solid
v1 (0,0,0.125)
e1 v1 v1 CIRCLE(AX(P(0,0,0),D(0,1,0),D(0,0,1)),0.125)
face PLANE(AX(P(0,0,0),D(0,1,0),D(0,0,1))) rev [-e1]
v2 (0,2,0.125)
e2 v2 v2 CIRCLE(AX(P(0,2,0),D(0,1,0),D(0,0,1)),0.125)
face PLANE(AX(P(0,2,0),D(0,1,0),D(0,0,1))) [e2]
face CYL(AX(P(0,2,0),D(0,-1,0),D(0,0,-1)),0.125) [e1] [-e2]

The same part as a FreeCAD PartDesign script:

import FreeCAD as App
import Part
import Sketcher
Q = App.Units.Quantity

doc = App.newDocument("Part")
body = doc.addObject("PartDesign::Body", "Body")

# Sketch on XZ plane
sketch1 = body.newObject("Sketcher::SketchObject", "Sketch")
sketch1.AttachmentSupport = (doc.getObject("XZ_Plane"), [""])
sketch1.MapMode = "FlatFace"
sketch1.addGeometry(Part.Circle(App.Vector(0, 0, 0), App.Vector(0, 0, 1), 0.125), False)
sketch1.addConstraint([
    Sketcher.Constraint("Coincident", 0, 3, -1, 1),
    Sketcher.Constraint("Diameter", 0, Q("0.25 mm")),
])
pad1 = body.newObject("PartDesign::Pad", "Pad")
pad1.Profile = sketch1
pad1.Length = 2
pad1.Reversed = True

doc.recompute()
